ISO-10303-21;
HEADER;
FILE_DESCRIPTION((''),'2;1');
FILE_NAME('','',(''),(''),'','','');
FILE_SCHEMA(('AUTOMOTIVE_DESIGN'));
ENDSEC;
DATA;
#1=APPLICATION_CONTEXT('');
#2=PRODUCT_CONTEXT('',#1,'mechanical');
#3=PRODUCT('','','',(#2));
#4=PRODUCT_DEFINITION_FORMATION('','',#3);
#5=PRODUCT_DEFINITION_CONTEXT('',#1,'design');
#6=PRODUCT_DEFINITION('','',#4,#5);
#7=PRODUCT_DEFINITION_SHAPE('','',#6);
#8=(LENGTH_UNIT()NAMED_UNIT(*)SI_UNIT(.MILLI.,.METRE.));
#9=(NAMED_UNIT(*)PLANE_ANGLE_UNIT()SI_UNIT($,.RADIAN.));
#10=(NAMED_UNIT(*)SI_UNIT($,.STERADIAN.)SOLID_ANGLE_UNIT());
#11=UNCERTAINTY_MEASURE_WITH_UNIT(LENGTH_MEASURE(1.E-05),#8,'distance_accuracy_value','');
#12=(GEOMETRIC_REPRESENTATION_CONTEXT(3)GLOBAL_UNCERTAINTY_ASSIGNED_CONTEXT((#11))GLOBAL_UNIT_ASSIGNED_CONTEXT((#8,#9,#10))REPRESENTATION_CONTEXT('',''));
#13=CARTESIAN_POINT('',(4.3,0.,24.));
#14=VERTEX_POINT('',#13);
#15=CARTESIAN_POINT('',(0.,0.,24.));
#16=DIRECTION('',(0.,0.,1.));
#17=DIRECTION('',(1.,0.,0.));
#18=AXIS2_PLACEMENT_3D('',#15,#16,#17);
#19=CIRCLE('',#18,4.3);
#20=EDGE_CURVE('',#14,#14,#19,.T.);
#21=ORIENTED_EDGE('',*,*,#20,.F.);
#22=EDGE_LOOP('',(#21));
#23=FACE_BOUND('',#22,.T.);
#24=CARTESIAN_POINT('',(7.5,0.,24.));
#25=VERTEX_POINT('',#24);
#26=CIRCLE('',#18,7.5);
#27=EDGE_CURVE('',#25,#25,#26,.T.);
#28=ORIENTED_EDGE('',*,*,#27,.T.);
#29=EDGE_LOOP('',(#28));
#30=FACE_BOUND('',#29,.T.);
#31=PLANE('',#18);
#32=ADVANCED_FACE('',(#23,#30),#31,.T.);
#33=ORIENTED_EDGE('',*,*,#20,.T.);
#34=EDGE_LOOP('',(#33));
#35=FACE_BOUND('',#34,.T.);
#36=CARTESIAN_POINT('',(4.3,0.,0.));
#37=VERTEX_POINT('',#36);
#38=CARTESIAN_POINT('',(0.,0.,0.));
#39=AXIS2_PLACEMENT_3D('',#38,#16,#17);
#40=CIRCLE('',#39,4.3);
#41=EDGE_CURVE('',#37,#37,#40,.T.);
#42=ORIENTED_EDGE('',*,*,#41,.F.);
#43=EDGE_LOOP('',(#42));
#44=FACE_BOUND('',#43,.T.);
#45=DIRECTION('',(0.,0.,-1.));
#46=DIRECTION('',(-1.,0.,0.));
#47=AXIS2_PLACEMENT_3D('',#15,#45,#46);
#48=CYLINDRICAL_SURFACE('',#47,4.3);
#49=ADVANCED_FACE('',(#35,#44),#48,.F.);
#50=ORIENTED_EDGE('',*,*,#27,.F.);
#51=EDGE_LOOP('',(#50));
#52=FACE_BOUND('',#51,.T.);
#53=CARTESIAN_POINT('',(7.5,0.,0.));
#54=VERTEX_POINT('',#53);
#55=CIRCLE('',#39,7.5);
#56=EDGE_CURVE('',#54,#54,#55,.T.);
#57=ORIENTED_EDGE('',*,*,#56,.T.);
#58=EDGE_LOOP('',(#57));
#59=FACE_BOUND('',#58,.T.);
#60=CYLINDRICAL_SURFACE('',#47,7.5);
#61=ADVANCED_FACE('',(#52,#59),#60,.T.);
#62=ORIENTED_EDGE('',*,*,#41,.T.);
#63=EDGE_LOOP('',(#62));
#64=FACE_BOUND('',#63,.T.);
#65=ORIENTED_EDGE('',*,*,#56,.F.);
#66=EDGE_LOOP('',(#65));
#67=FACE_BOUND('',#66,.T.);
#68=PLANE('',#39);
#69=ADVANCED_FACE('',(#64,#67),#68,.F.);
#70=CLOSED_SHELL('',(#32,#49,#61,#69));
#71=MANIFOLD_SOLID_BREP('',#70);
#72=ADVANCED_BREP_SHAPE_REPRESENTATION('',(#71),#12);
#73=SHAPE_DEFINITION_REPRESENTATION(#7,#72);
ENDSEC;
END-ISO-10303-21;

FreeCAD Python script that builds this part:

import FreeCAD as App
import Part
import Sketcher

V = App.Vector

doc = App.newDocument("Part")
params = doc.addObject("Spreadsheet::Sheet", "Params")
for row, (alias, value) in enumerate([
    ("sketch1_diameter", "15 mm"),
    ("sketch1_diameter2", "8.6 mm"),
    ("pad1_length", "24 mm"),
], start=1):
    params.set(f"A{row}", alias)
    params.set(f"B{row}", "=" + value)
    params.setAlias(f"B{row}", alias)

body = doc.addObject("PartDesign::Body", "Body")

sketch1 = body.newObject("Sketcher::SketchObject", "Sketch")
sketch1.AttachmentSupport = (doc.getObject("XY_Plane"), [""])
sketch1.MapMode = "FlatFace"
sketch1.addGeometry([
    Part.Circle(V(0, 0, 0), V(0, 0, 1), 7.5),
    Part.Circle(V(0, 0, 0), V(0, 0, 1), 4.3),
], False)
sketch1.addConstraint([
    Sketcher.Constraint("Coincident", 0, 3, -1, 1),
    Sketcher.Constraint("Coincident", 1, 3, -1, 1),
    Sketcher.Constraint("Diameter", 0, 15.0),
    Sketcher.Constraint("Diameter", 1, 8.6),
])
sketch1.setExpression("Constraints[2]", "Params.sketch1_diameter")
sketch1.setExpression("Constraints[3]", "Params.sketch1_diameter2")
pad1 = body.newObject("PartDesign::Pad", "Pad")
pad1.Profile = sketch1
pad1.setExpression("Length", "Params.pad1_length")

doc.recompute()
